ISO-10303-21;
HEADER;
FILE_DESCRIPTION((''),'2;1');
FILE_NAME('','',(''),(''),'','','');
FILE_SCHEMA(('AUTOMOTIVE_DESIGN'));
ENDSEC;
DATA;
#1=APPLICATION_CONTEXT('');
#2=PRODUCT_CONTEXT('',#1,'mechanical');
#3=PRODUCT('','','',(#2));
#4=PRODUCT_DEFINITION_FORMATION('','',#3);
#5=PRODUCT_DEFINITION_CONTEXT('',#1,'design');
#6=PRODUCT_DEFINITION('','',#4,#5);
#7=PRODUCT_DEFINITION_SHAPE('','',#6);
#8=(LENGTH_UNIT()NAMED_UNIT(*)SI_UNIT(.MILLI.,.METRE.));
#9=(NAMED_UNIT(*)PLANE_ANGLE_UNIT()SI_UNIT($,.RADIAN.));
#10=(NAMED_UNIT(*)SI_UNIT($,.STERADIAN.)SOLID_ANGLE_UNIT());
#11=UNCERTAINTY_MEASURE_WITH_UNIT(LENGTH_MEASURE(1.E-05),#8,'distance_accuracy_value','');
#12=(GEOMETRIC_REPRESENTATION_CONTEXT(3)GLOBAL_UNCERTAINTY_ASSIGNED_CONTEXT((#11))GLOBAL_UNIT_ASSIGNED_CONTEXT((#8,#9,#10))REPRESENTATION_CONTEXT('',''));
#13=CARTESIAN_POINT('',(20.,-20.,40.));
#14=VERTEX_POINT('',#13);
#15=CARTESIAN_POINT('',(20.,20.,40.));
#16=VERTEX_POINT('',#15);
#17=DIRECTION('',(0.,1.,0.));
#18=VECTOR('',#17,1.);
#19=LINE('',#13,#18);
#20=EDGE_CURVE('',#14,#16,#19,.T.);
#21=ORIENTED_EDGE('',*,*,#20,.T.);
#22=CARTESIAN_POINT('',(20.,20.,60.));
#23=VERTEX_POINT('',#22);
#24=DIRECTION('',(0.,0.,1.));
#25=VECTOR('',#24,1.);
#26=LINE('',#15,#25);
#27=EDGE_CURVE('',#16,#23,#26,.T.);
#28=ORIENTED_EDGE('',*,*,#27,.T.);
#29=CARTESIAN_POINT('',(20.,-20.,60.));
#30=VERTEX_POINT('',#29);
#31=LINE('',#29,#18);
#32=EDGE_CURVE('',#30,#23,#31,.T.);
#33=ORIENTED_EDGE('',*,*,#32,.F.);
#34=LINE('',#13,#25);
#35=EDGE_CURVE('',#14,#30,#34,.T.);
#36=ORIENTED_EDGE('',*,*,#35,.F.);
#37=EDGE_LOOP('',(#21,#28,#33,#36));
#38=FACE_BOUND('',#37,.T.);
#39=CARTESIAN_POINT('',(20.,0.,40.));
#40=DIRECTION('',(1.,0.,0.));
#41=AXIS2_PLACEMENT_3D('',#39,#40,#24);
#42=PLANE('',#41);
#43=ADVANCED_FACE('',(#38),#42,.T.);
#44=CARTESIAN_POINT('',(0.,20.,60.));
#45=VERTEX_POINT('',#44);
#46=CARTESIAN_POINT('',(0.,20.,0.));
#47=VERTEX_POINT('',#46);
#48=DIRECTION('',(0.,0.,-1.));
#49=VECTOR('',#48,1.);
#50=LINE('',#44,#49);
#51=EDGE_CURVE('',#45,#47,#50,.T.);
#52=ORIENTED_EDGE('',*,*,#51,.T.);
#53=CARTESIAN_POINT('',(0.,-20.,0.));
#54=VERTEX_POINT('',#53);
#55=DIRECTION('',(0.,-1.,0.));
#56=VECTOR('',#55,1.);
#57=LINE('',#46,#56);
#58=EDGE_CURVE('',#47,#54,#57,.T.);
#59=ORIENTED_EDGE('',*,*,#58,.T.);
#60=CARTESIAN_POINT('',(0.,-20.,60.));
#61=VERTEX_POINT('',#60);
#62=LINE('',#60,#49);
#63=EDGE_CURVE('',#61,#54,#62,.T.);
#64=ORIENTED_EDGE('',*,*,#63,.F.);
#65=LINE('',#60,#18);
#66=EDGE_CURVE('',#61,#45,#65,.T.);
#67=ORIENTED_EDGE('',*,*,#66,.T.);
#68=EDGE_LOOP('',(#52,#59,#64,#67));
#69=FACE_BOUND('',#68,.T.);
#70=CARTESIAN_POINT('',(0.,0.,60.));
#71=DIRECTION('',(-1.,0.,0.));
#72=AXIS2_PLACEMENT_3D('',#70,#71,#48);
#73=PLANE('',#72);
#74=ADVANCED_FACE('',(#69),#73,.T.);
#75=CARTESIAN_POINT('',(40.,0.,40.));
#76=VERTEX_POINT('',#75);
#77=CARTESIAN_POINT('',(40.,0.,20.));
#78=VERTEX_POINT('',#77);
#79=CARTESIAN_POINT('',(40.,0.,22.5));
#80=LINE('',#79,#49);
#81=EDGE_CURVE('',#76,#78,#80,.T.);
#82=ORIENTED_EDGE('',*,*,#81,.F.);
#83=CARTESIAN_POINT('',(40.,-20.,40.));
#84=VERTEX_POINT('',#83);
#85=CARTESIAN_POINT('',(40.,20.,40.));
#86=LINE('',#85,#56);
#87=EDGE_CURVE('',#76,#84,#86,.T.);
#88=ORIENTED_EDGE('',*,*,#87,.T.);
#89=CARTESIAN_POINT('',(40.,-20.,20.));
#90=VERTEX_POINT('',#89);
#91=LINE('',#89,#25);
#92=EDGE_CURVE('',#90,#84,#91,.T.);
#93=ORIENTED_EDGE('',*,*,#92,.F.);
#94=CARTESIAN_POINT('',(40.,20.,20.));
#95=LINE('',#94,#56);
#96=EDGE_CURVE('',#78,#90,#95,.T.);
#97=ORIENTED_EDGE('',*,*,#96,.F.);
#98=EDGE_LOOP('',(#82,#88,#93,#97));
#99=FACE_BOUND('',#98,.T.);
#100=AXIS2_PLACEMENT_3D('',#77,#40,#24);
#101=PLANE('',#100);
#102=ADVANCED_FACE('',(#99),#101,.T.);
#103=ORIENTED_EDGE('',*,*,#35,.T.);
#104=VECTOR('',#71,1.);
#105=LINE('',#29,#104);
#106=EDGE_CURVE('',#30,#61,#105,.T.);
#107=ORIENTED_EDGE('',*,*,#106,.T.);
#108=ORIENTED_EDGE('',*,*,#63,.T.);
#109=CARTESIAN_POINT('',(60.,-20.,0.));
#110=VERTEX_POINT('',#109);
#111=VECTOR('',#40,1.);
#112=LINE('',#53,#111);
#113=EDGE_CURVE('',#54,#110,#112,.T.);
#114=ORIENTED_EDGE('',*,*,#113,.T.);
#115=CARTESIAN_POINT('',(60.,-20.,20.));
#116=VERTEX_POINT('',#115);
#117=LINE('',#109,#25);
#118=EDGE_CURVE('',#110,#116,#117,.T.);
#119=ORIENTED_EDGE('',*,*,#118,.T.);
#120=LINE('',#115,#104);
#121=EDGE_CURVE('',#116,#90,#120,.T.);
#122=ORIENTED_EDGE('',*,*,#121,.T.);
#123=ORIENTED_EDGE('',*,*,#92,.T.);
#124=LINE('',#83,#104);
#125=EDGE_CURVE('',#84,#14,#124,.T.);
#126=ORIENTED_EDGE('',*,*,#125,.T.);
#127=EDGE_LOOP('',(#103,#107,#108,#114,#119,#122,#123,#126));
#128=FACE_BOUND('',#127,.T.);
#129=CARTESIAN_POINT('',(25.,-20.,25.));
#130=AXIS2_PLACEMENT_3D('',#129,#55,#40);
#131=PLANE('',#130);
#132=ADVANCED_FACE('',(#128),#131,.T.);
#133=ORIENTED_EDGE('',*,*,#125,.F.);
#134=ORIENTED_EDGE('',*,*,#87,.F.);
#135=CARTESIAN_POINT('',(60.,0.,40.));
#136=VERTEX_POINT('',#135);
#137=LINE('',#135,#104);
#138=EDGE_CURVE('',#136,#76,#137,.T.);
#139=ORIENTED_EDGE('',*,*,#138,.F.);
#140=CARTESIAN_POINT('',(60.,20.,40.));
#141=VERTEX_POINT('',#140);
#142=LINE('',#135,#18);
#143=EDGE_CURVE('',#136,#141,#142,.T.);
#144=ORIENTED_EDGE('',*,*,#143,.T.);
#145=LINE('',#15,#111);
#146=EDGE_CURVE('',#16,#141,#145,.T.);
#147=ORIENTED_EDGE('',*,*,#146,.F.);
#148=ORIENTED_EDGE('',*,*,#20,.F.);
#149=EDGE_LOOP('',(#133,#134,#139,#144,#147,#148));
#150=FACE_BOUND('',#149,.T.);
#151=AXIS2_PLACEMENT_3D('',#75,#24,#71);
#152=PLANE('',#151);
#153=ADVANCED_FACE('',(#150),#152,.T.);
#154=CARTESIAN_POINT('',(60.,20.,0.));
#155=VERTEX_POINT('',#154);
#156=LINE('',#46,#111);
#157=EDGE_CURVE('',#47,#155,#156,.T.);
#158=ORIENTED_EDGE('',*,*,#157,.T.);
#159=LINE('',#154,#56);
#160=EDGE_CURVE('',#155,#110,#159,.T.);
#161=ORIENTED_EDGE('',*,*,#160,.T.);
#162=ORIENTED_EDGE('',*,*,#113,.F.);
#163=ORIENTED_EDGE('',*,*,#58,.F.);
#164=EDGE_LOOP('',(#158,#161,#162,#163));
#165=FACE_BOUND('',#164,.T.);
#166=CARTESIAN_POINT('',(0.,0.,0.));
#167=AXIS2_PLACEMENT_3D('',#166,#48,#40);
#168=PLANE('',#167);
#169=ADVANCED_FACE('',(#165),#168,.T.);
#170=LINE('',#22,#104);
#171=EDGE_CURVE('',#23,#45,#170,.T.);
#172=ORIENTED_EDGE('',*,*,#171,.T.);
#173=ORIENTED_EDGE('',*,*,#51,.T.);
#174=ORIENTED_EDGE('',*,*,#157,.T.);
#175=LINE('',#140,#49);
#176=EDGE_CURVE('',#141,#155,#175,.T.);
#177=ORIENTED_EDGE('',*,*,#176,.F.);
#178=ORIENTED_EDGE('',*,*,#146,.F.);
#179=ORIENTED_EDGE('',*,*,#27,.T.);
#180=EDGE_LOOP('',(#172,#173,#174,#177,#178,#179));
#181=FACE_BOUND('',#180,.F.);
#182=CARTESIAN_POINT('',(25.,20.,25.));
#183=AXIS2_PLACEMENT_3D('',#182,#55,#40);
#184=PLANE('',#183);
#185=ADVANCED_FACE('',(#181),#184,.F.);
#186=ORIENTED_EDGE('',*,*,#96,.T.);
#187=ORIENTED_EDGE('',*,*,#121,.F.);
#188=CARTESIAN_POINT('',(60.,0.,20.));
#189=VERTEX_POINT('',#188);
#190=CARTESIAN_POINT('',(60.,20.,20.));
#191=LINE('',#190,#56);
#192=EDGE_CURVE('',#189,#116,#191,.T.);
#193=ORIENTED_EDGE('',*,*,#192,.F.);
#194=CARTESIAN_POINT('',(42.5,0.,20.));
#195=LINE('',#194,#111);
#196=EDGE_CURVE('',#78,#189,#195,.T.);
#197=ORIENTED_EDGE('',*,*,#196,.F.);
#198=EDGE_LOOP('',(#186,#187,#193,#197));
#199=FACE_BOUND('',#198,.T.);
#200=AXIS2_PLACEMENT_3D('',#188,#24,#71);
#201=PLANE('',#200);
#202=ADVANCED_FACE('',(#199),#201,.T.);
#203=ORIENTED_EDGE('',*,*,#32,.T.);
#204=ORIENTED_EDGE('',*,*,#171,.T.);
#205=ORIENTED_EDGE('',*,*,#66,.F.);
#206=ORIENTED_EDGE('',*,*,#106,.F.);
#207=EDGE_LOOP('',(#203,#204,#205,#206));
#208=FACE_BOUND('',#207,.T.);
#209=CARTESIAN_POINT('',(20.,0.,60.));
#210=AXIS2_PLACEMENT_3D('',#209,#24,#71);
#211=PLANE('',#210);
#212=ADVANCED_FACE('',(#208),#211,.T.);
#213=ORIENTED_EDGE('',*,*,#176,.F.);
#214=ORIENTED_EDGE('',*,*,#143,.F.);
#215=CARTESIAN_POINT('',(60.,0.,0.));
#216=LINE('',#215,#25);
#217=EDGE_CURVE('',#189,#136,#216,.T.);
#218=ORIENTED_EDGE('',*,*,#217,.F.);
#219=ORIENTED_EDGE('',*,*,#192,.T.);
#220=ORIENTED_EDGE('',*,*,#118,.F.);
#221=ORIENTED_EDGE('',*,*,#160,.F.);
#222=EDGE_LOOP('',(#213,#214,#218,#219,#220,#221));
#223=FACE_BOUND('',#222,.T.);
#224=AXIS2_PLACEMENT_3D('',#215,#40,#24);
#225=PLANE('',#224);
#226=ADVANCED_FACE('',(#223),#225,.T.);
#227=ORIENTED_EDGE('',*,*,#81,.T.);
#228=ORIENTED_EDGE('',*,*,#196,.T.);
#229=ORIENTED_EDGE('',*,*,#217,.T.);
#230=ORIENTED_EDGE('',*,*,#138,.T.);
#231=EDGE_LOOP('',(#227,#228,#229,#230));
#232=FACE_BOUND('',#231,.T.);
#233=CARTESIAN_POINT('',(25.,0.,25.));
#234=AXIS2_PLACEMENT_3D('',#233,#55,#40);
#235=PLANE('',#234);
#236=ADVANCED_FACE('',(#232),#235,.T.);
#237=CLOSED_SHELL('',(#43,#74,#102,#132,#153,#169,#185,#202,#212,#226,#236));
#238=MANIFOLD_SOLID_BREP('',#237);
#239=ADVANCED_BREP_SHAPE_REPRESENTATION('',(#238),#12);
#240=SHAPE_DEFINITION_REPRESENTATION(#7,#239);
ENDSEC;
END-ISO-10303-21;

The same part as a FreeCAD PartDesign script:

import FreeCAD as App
import Part
import Sketcher

V = App.Vector
Q = App.Units.Quantity

doc = App.newDocument("Part")
body = doc.addObject("PartDesign::Body", "Body")

sketch1 = body.newObject("Sketcher::SketchObject", "Sketch")
sketch1.AttachmentSupport = (doc.getObject("XZ_Plane"), [""])
sketch1.MapMode = "FlatFace"
sketch1.addGeometry(Part.LineSegment(V(0, 60, 0), V(0, 0, 0)), False)
sketch1.addGeometry(Part.LineSegment(V(0, 0, 0), V(60, 0, 0)), False)
sketch1.addGeometry(Part.LineSegment(V(60, 0, 0), V(60, 20, 0)), False)
sketch1.addGeometry(Part.LineSegment(V(60, 20, 0), V(40, 20, 0)), False)
sketch1.addGeometry(Part.LineSegment(V(40, 20, 0), V(40, 40, 0)), False)
sketch1.addGeometry(Part.LineSegment(V(40, 40, 0), V(20, 40, 0)), False)
sketch1.addGeometry(Part.LineSegment(V(20, 40, 0), V(20, 60, 0)), False)
sketch1.addGeometry(Part.LineSegment(V(20, 60, 0), V(0, 60, 0)), False)
sketch1.addConstraint(Sketcher.Constraint("Coincident", 0, 2, 1, 1))
sketch1.addConstraint(Sketcher.Constraint("Coincident", 1, 2, 2, 1))
sketch1.addConstraint(Sketcher.Constraint("Coincident", 2, 2, 3, 1))
sketch1.addConstraint(Sketcher.Constraint("Coincident", 3, 2, 4, 1))
sketch1.addConstraint(Sketcher.Constraint("Coincident", 4, 2, 5, 1))
sketch1.addConstraint(Sketcher.Constraint("Coincident", 5, 2, 6, 1))
sketch1.addConstraint(Sketcher.Constraint("Coincident", 6, 2, 7, 1))
sketch1.addConstraint(Sketcher.Constraint("Coincident", 7, 2, 0, 1))
sketch1.addConstraint(Sketcher.Constraint("Vertical", 0))
sketch1.addConstraint(Sketcher.Constraint("Horizontal", 1))
sketch1.addConstraint(Sketcher.Constraint("Vertical", 2))
sketch1.addConstraint(Sketcher.Constraint("Horizontal", 3))
sketch1.addConstraint(Sketcher.Constraint("Vertical", 4))
sketch1.addConstraint(Sketcher.Constraint("Horizontal", 5))
sketch1.addConstraint(Sketcher.Constraint("Vertical", 6))
sketch1.addConstraint(Sketcher.Constraint("Horizontal", 7))
sketch1.addConstraint(Sketcher.Constraint("Coincident", 0, 2, -1, 1))
sketch1.addConstraint(Sketcher.Constraint("Equal", 3, 5))
sketch1.addConstraint(Sketcher.Constraint("Equal", 5, 7))
sketch1.addConstraint(Sketcher.Constraint("Equal", 1, 0))
sketch1.addConstraint(Sketcher.Constraint("Equal", 7, 2))
sketch1.addConstraint(Sketcher.Constraint("Equal", 2, 4))
sketch1.addConstraint(Sketcher.Constraint("DistanceX", 1, 1, 1, 2, Q("60 mm")))
pad1 = body.newObject("PartDesign::Pad", "Pad")
pad1.Profile = sketch1
pad1.Length = 40
pad1.Midplane = True

sketch2 = body.newObject("Sketcher::SketchObject", "Sketch001")
sketch2.AttachmentSupport = (doc.getObject("XZ_Plane"), [""])
sketch2.MapMode = "FlatFace"
sketch2.addGeometry(Part.LineSegment(V(0, 60, 0), V(0, 0, 0)), False)
sketch2.addGeometry(Part.LineSegment(V(0, 0, 0), V(60, 0, 0)), False)
sketch2.addGeometry(Part.LineSegment(V(60, 0, 0), V(60, 40, 0)), False)
sketch2.addGeometry(Part.LineSegment(V(60, 40, 0), V(20, 40, 0)), False)
sketch2.addGeometry(Part.LineSegment(V(20, 40, 0), V(20, 60, 0)), False)
sketch2.addGeometry(Part.LineSegment(V(20, 60, 0), V(0, 60, 0)), False)
sketch2.addConstraint(Sketcher.Constraint("Coincident", 0, 2, 1, 1))
sketch2.addConstraint(Sketcher.Constraint("Coincident", 1, 2, 2, 1))
sketch2.addConstraint(Sketcher.Constraint("Coincident", 2, 2, 3, 1))
sketch2.addConstraint(Sketcher.Constraint("Coincident", 3, 2, 4, 1))
sketch2.addConstraint(Sketcher.Constraint("Coincident", 4, 2, 5, 1))
sketch2.addConstraint(Sketcher.Constraint("Coincident", 5, 2, 0, 1))
sketch2.addConstraint(Sketcher.Constraint("Vertical", 0))
sketch2.addConstraint(Sketcher.Constraint("Horizontal", 1))
sketch2.addConstraint(Sketcher.Constraint("Vertical", 2))
sketch2.addConstraint(Sketcher.Constraint("Horizontal", 3))
sketch2.addConstraint(Sketcher.Constraint("Vertical", 4))
sketch2.addConstraint(Sketcher.Constraint("Horizontal", 5))
sketch2.addConstraint(Sketcher.Constraint("Coincident", 0, 2, -1, 1))
sketch2.addConstraint(Sketcher.Constraint("Equal", 1, 0))
sketch2.addConstraint(Sketcher.Constraint("Equal", 3, 2))
sketch2.addConstraint(Sketcher.Constraint("DistanceX", 1, 1, 1, 2, Q("60 mm")))
sketch2.addConstraint(Sketcher.Constraint("DistanceX", 3, 2, 3, 1, Q("40 mm")))
pad2 = body.newObject("PartDesign::Pad", "Pad001")
pad2.Profile = sketch2
pad2.Length = 20
pad2.Reversed = True

doc.recompute()
